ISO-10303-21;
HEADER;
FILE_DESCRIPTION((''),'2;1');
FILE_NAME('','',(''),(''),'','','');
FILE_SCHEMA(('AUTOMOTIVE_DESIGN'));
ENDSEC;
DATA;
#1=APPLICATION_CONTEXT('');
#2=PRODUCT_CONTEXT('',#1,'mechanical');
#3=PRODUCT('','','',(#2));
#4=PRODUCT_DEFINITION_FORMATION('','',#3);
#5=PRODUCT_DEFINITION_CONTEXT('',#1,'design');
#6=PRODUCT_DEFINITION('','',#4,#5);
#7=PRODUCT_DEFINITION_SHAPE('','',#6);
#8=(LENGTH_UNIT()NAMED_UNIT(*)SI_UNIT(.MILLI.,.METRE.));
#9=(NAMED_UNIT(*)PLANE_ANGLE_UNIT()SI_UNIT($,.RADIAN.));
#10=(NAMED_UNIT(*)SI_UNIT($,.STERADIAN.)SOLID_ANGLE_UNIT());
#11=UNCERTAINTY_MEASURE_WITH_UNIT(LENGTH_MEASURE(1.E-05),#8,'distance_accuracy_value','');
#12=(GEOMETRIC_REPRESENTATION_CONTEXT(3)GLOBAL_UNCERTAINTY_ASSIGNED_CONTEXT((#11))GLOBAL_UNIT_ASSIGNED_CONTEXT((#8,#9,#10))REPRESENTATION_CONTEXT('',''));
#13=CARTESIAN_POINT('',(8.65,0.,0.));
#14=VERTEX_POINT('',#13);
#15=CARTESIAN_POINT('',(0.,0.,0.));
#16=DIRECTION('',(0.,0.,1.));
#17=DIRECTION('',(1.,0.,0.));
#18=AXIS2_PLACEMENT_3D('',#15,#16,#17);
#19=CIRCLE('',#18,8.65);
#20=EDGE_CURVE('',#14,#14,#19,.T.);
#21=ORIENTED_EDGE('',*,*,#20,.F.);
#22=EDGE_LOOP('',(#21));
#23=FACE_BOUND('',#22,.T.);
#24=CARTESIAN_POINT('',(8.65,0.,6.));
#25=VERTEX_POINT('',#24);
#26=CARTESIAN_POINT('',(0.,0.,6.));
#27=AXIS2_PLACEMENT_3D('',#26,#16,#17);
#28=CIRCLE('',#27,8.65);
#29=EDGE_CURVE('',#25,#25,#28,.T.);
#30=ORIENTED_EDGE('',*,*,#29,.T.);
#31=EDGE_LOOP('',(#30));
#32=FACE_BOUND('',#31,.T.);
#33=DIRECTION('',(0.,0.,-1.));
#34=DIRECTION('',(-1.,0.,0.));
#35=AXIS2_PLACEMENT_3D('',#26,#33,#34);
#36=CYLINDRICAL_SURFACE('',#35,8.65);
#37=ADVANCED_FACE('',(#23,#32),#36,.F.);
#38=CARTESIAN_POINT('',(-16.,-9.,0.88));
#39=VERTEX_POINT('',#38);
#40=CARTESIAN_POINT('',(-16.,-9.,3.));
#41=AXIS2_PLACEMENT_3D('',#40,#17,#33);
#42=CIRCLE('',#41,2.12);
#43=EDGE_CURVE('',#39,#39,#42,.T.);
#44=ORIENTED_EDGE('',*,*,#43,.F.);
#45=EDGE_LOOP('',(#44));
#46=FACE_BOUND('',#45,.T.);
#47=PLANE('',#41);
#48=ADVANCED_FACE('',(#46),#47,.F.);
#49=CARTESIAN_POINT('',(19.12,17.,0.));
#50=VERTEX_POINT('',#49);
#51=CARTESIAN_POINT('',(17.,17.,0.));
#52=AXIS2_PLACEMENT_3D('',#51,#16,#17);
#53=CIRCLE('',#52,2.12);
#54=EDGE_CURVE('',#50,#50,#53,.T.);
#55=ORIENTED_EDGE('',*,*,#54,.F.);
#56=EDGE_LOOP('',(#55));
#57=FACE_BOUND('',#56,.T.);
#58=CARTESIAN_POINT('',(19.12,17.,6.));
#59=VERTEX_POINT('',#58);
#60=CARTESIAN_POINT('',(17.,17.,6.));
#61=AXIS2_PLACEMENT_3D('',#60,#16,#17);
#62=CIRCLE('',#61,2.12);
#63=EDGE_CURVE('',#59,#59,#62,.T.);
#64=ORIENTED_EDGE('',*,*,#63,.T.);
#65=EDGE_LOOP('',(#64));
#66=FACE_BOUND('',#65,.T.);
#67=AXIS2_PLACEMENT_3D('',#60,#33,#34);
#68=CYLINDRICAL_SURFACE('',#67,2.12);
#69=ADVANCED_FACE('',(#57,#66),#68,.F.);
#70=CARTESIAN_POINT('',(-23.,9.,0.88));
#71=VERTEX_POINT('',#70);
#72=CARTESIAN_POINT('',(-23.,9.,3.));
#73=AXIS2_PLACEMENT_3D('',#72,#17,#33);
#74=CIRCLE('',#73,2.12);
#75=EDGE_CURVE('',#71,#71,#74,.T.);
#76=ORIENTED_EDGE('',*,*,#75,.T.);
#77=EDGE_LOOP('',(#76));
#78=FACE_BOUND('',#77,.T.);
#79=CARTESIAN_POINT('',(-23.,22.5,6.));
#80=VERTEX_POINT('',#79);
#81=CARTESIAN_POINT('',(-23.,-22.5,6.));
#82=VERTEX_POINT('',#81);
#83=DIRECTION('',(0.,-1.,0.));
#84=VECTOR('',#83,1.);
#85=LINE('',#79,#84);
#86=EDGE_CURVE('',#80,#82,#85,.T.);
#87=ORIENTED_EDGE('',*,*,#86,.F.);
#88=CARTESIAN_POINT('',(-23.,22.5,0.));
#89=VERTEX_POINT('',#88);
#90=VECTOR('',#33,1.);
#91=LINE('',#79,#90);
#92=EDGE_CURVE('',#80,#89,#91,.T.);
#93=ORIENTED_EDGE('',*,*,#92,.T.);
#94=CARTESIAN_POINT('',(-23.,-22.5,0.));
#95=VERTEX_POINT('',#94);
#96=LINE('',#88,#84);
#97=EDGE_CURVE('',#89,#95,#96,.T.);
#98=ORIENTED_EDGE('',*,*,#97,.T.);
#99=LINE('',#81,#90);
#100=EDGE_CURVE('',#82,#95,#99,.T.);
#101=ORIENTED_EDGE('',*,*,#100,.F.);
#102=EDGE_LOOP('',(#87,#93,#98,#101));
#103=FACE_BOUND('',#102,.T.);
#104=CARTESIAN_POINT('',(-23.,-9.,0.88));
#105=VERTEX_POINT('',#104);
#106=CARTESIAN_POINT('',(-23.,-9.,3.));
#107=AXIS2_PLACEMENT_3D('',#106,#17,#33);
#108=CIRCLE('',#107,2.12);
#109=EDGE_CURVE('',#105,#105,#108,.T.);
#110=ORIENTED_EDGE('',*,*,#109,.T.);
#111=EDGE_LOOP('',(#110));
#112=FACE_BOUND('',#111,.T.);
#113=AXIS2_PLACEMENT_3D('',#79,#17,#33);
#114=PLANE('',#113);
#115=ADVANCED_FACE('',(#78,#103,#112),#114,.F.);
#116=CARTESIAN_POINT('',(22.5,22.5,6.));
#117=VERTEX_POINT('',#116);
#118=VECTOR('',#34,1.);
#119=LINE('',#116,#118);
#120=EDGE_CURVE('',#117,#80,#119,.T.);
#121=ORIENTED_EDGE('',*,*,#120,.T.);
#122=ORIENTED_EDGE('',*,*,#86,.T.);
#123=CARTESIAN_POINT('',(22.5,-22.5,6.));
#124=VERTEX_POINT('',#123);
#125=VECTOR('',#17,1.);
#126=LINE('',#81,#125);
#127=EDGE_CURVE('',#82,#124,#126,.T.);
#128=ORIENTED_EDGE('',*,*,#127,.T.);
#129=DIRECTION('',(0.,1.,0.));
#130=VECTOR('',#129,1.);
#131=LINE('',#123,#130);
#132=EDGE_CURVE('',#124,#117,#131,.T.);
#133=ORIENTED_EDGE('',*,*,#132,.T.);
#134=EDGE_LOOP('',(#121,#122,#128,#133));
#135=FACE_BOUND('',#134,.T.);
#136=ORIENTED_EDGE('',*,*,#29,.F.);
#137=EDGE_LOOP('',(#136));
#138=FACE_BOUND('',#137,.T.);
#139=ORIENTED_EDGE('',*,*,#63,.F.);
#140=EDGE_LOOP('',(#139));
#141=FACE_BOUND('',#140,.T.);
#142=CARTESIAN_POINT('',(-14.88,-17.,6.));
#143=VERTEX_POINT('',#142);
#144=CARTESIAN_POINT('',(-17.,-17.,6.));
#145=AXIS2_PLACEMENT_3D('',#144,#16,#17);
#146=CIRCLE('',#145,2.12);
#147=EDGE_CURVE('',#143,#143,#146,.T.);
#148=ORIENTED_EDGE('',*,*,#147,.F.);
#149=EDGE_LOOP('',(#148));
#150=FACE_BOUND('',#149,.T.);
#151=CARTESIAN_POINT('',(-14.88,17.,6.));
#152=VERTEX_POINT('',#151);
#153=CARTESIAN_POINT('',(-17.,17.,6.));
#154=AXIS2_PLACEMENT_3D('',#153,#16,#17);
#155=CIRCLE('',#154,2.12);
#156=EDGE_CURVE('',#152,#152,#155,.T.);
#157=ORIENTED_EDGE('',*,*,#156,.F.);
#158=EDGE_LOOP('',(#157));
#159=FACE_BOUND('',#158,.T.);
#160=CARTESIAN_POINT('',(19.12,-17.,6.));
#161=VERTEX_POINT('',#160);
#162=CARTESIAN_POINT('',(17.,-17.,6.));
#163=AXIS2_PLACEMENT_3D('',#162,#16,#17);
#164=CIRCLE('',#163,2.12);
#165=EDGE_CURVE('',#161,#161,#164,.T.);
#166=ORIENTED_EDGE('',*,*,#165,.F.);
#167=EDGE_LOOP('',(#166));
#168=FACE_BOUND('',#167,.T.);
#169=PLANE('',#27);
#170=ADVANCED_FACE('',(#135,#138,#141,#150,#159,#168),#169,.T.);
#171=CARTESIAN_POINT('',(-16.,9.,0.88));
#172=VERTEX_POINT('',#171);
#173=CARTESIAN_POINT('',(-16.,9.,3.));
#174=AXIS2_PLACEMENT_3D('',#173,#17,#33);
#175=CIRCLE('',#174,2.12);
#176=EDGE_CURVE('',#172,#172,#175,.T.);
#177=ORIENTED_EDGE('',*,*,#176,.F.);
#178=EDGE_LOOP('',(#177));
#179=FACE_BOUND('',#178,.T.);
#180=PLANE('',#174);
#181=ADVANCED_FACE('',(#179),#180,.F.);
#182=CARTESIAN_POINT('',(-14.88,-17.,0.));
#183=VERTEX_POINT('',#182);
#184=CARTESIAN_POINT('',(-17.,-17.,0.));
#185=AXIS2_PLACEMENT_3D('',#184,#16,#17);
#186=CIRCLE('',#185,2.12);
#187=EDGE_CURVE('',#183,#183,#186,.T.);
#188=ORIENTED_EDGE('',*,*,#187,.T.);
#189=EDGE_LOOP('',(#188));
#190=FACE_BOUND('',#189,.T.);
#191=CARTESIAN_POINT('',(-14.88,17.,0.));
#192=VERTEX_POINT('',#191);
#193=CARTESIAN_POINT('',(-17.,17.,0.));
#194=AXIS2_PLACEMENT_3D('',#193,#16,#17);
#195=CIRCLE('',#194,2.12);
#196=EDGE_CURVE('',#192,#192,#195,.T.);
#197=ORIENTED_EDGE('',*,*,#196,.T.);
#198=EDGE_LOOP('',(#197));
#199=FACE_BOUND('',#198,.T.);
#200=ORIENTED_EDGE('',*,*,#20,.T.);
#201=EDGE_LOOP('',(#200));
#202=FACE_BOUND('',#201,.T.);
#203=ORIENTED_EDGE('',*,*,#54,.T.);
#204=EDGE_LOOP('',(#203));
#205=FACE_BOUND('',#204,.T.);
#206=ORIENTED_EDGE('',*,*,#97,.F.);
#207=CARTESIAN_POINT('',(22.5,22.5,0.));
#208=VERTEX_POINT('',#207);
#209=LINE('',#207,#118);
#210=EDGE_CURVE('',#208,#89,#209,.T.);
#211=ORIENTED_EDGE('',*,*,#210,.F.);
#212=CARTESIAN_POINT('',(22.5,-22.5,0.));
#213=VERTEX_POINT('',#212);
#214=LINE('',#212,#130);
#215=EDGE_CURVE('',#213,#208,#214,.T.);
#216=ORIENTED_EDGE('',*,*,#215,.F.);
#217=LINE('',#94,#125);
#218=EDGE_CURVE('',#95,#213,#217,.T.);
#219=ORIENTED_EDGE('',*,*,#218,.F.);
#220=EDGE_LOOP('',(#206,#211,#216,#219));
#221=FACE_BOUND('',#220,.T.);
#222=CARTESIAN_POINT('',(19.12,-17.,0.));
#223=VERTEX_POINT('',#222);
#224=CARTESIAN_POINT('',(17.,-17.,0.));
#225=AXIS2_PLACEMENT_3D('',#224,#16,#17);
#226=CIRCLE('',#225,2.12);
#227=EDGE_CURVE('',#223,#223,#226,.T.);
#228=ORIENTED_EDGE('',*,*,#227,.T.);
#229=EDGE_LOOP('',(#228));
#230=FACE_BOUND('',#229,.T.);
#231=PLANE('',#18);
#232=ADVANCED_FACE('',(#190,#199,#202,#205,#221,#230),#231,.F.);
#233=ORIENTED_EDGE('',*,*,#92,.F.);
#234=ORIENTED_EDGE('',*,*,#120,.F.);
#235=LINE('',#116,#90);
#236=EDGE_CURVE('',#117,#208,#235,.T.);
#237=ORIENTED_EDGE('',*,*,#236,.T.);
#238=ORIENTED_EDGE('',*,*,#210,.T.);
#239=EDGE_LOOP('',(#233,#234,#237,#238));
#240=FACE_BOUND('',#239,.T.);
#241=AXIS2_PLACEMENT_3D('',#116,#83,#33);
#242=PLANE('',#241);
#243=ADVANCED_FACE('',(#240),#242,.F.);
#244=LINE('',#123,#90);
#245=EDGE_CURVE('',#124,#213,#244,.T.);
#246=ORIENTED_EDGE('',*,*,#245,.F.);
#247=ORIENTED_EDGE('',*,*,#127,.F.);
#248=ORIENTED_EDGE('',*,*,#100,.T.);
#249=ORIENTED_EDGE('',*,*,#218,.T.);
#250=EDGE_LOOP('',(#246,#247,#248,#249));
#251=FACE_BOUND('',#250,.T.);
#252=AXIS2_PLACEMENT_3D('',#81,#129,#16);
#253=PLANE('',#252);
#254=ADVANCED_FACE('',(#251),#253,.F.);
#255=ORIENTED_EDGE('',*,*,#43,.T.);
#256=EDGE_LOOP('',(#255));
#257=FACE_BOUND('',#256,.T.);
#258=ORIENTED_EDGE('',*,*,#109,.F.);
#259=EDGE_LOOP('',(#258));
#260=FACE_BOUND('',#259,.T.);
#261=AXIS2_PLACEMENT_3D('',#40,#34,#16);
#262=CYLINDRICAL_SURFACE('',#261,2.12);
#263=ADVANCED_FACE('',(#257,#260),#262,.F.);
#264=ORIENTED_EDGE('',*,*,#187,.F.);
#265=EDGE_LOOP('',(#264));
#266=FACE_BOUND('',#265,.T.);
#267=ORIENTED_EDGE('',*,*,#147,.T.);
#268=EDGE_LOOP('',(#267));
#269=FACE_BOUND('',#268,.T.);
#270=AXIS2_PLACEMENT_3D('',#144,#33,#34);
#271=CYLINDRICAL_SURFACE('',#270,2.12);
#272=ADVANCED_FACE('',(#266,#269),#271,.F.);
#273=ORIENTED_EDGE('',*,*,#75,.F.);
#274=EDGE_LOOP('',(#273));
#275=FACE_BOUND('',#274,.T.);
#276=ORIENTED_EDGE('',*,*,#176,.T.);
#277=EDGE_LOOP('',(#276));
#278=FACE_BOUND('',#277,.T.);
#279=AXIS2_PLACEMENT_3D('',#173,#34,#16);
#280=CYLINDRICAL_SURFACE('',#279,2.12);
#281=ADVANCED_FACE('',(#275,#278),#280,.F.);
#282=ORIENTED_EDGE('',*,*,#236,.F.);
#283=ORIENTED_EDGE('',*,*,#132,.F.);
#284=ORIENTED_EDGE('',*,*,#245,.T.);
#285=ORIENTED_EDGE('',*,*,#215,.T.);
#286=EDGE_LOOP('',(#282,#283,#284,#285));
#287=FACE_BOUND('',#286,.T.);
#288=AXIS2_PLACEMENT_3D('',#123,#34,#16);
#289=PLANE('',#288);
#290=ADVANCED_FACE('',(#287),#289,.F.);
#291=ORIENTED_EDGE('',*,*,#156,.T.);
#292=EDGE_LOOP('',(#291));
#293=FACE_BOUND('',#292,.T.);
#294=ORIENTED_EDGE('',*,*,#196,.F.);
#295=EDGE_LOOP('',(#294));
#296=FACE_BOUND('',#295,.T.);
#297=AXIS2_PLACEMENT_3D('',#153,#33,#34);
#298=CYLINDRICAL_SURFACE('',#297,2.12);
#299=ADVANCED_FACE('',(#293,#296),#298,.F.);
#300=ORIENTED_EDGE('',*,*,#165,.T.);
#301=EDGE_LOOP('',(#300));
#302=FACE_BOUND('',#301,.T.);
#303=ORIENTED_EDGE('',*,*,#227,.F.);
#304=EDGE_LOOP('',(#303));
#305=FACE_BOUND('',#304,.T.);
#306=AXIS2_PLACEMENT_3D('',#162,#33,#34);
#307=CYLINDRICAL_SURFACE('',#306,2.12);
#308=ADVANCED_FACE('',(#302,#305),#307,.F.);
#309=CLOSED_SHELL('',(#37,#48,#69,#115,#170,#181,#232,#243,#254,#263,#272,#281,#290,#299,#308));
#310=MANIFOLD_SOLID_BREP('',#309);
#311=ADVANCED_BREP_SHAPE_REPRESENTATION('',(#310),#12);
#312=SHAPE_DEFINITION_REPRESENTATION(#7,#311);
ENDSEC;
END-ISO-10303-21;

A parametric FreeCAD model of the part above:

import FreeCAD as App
import Part
import Sketcher

V = App.Vector

doc = App.newDocument("Part")
body = doc.addObject("PartDesign::Body", "Body")

# Sketch on XY plane
sketch1 = body.newObject("Sketcher::SketchObject", "Sketch")
sketch1.AttachmentSupport = (doc.getObject("XY_Plane"), [""])
sketch1.MapMode = "FlatFace"
sketch1.addGeometry([
    Part.LineSegment(V(-23, 22.5, 0), V(-23, -22.5, 0)),  # 0
    Part.LineSegment(V(-23, -22.5, 0), V(22.5, -22.5, 0)),  # 1
    Part.LineSegment(V(22.5, -22.5, 0), V(22.5, 22.5, 0)),  # 2
    Part.LineSegment(V(22.5, 22.5, 0), V(-23, 22.5, 0)),  # 3
    Part.Circle(V(-17, -17, 0), V(0, 0, 1), 2.1),  # 4
    Part.Circle(V(17, -17, 0), V(0, 0, 1), 2.1),  # 5
    Part.Circle(V(-17, 17, 0), V(0, 0, 1), 2.1),  # 6
    Part.Circle(V(0, 0, 0), V(0, 0, 1), 8.7),  # 7
    Part.Circle(V(17, 17, 0), V(0, 0, 1), 2.1),  # 8
], False)
sketch1.addConstraint([
    Sketcher.Constraint("Coincident", 0, 2, 1, 1),
    Sketcher.Constraint("Coincident", 1, 2, 2, 1),
    Sketcher.Constraint("Coincident", 2, 2, 3, 1),
    Sketcher.Constraint("Coincident", 3, 2, 0, 1),
    Sketcher.Constraint("Vertical", 0),
    Sketcher.Constraint("Horizontal", 1),
    Sketcher.Constraint("Vertical", 2),
    Sketcher.Constraint("Horizontal", 3),
    Sketcher.Constraint("Coincident", 7, 3, -1, 1),
    Sketcher.Constraint("Equal", 4, 5),
    Sketcher.Constraint("Equal", 5, 6),
    Sketcher.Constraint("Equal", 6, 8),
    Sketcher.Constraint("Symmetric", 5, 3, 6, 3, -1, 1),
    Sketcher.Constraint("Symmetric", 4, 3, 8, 3, -1, 1),
    Sketcher.Constraint("Symmetric", 4, 3, 5, 3, -2),
    Sketcher.Constraint("Diameter", 7, 17.3),
    Sketcher.Constraint("Diameter", 4, 4.24),
    Sketcher.Constraint("DistanceY", 0, 2, 0, 1, 45.0),
    Sketcher.Constraint("DistanceX", 1, 1, 1, 2, 45.5),
    Sketcher.Constraint("DistanceX", 4, 3, -1, 1, 17.0),
    Sketcher.Constraint("DistanceY", 4, 3, -1, 1, 17.0),
    Sketcher.Constraint("DistanceX", 0, 2, -1, 1, 23.0),
    Sketcher.Constraint("DistanceY", 0, 2, -1, 1, 22.5),
])
pad1 = body.newObject("PartDesign::Pad", "Pad")
pad1.Profile = sketch1
pad1.Length = 6

# Sketch on YZ plane
sketch2 = body.newObject("Sketcher::SketchObject", "Sketch001")
sketch2.AttachmentSupport = (doc.getObject("YZ_Plane"), [""])
sketch2.MapMode = "FlatFace"
sketch2.AttachmentOffset = App.Placement(V(0, 0, -23), App.Rotation())
sketch2.addGeometry([
    Part.Circle(V(-9, 3, 0), V(0, 0, 1), 2.1),
    Part.Circle(V(9, 3, 0), V(0, 0, 1), 2.1),
], False)
sketch2.addConstraint([
    Sketcher.Constraint("Equal", 0, 1),
    Sketcher.Constraint("Symmetric", 0, 3, 1, 3, -2),
    Sketcher.Constraint("Diameter", 0, 4.24),
    Sketcher.Constraint("DistanceX", 0, 3, -1, 1, 9.0),
    Sketcher.Constraint("DistanceY", -1, 1, 0, 3, 3.0),
])
pocket1 = body.newObject("PartDesign::Pocket", "Pocket")
pocket1.Profile = sketch2
pocket1.Length = 7
pocket1.Reversed = True

doc.recompute()
